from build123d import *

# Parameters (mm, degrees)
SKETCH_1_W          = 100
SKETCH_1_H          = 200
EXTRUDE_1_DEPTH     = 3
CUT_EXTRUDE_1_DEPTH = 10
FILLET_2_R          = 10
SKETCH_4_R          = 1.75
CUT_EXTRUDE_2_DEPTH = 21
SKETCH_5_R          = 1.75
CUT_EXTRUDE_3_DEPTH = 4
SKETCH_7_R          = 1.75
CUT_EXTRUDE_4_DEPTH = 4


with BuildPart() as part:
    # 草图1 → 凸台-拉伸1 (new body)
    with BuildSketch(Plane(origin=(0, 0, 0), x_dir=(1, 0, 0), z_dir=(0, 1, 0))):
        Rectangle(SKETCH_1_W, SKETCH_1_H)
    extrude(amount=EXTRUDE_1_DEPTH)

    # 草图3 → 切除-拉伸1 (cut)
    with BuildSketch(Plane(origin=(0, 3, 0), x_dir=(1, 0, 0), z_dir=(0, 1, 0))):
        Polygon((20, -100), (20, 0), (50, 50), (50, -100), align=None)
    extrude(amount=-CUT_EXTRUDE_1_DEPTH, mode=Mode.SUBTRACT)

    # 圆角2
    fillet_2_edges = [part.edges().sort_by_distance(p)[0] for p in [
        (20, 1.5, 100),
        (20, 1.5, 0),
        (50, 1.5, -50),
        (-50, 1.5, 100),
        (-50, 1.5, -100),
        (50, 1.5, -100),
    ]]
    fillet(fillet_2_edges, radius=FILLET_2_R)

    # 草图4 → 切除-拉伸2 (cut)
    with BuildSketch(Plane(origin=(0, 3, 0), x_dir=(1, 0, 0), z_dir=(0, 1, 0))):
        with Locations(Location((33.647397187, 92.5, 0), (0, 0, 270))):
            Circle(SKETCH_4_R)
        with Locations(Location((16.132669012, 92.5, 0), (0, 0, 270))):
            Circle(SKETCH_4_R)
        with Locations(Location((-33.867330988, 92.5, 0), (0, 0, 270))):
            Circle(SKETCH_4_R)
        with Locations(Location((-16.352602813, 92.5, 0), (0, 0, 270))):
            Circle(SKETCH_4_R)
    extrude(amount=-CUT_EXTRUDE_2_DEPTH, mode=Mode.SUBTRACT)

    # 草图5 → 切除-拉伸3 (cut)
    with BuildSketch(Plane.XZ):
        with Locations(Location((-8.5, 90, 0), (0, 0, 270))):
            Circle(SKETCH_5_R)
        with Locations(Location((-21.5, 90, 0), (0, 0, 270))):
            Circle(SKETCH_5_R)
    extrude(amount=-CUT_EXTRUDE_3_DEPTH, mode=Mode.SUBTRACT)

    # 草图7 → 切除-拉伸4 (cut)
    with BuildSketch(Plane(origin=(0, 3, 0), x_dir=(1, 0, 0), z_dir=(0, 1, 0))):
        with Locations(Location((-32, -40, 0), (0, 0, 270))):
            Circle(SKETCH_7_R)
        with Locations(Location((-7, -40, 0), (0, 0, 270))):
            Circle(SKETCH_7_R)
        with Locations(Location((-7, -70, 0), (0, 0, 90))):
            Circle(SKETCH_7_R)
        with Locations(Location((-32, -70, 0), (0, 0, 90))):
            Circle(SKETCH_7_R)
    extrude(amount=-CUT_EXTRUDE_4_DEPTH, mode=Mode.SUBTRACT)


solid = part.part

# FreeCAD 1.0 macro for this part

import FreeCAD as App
import Part
import Sketcher
Q = App.Units.Quantity


def edges_at(feature, points):
    """Names of the edges that pass closest to the given points."""
    edges = feature.Shape.Edges
    near = lambda p: min(range(len(edges)), key=lambda i: edges[i].distToShape(Part.Vertex(*p))[0])
    return sorted({f"Edge{near(p) + 1}" for p in points})


def add_polygon(sketch, points):
    """Adds a closed chain of lines whose ends are joined by coincident constraints."""
    first, n = sketch.GeometryCount, len(points)
    for a, b in zip(points, points[1:] + points[:1]):
        sketch.addGeometry(Part.LineSegment(App.Vector(*a, 0), App.Vector(*b, 0)), False)
    for i in range(n):
        sketch.addConstraint(Sketcher.Constraint("Coincident", first + i, 2, first + (i + 1) % n, 1))

doc = App.newDocument("Part")
params = doc.addObject("Spreadsheet::Sheet", "Params")
for row, (alias, value) in enumerate([
    ("sketch1_width", "100 mm"),
    ("sketch1_height", "200 mm"),
    ("pad1_length", "3 mm"),
    ("sketch2_width", "30 mm"),
    ("sketch2_height", "100 mm"),
    ("sketch2_height2", "150 mm"),
    ("pocket1_length", "10 mm"),
    ("fillet_radius", "10 mm"),
    ("sketch3_diameter", "3.5 mm"),
    ("pocket2_length", "21 mm"),
    ("sketch4_diameter", "3.5 mm"),
    ("pocket3_length", "4 mm"),
    ("sketch5_diameter", "3.5 mm"),
    ("pocket4_length", "4 mm"),
], start=1):
    params.set(f"A{row}", alias)
    params.set(f"B{row}", "=" + value)
    params.setAlias(f"B{row}", alias)

body = doc.addObject("PartDesign::Body", "Body")

# Sketch on XZ plane
sketch1 = body.newObject("Sketcher::SketchObject", "Sketch")
sketch1.AttachmentSupport = (doc.getObject("XZ_Plane"), [""])
sketch1.MapMode = "FlatFace"
add_polygon(sketch1, [(-50, -100), (-50, 100), (50, 100), (50, -100)])  # lines 0-3
sketch1.addConstraint([
    Sketcher.Constraint("Vertical", 0),
    Sketcher.Constraint("Horizontal", 1),
    Sketcher.Constraint("Vertical", 2),
    Sketcher.Constraint("Horizontal", 3),
    Sketcher.Constraint("Symmetric", 0, 2, 2, 2, -1, 1),
    Sketcher.Constraint("DistanceX", 1, 1, 1, 2, Q("100 mm")),
    Sketcher.Constraint("DistanceY", 0, 1, 0, 2, Q("200 mm")),
])
sketch1.setExpression("Constraints[9]", "Params.sketch1_width")
sketch1.setExpression("Constraints[10]", "Params.sketch1_height")
pad1 = body.newObject("PartDesign::Pad", "Pad")
pad1.Profile = sketch1
pad1.setExpression("Length", "Params.pad1_length")
pad1.Reversed = True

# Sketch on XZ plane
sketch2 = body.newObject("Sketcher::SketchObject", "Sketch001")
sketch2.AttachmentSupport = (doc.getObject("XZ_Plane"), [""])
sketch2.MapMode = "FlatFace"
sketch2.AttachmentOffset = App.Placement(App.Vector(0, 0, -3), App.Rotation())
add_polygon(sketch2, [(20, 0), (20, 100), (50, 100), (50, -50)])  # lines 0-3
sketch2.addConstraint([
    Sketcher.Constraint("Vertical", 0),
    Sketcher.Constraint("Horizontal", 1),
    Sketcher.Constraint("Vertical", 2),
    Sketcher.Constraint("PointOnObject", 3, 2, -1),
    Sketcher.Constraint("DistanceX", 1, 1, 1, 2, Q("30 mm")),
    Sketcher.Constraint("DistanceY", 0, 1, 0, 2, Q("100 mm")),
    Sketcher.Constraint("DistanceY", 2, 2, 2, 1, Q("150 mm")),
    Sketcher.Constraint("DistanceX", -1, 1, 0, 2, Q("20 mm")),
])
sketch2.setExpression("Constraints[8]", "Params.sketch2_width")
sketch2.setExpression("Constraints[9]", "Params.sketch2_height")
sketch2.setExpression("Constraints[10]", "Params.sketch2_height2")
pocket1 = body.newObject("PartDesign::Pocket", "Pocket")
pocket1.Profile = sketch2
pocket1.setExpression("Length", "Params.pocket1_length")
pocket1.Reversed = True
doc.recompute()

fillet = body.newObject("PartDesign::Fillet", "Fillet")
fillet.Base = (pocket1, edges_at(pocket1, [
    (20, 1.5, 100),
    (20, 1.5, 0),
    (50, 1.5, -50),
    (-50, 1.5, 100),
    (-50, 1.5, -100),
    (50, 1.5, -100),
]))
fillet.setExpression("Radius", "Params.fillet_radius")

# Sketch on XZ plane
sketch3 = body.newObject("Sketcher::SketchObject", "Sketch002")
sketch3.AttachmentSupport = (doc.getObject("XZ_Plane"), [""])
sketch3.MapMode = "FlatFace"
sketch3.AttachmentOffset = App.Placement(App.Vector(0, 0, -3), App.Rotation())
sketch3.addGeometry([
    Part.Circle(App.Vector(33.6, -92.5, 0), App.Vector(0, 0, 1), 1.8),
    Part.Circle(App.Vector(16.1, -92.5, 0), App.Vector(0, 0, 1), 1.8),
    Part.Circle(App.Vector(-33.9, -92.5, 0), App.Vector(0, 0, 1), 1.8),
    Part.Circle(App.Vector(-16.4, -92.5, 0), App.Vector(0, 0, 1), 1.8),
], False)
sketch3.addConstraint([
    Sketcher.Constraint("Equal", 0, 1),
    Sketcher.Constraint("Equal", 1, 2),
    Sketcher.Constraint("Equal", 2, 3),
    Sketcher.Constraint("Horizontal", 0, 3, 1, 3),
    Sketcher.Constraint("Horizontal", 1, 3, 2, 3),
    Sketcher.Constraint("Horizontal", 2, 3, 3, 3),
    Sketcher.Constraint("Diameter", 0, Q("3.5 mm")),
    Sketcher.Constraint("DistanceX", 2, 3, 1, 3, Q("50 mm")),
    Sketcher.Constraint("DistanceX", 3, 3, 0, 3, Q("50 mm")),
    Sketcher.Constraint("DistanceY", 0, 3, -1, 1, Q("92.5 mm")),
    Sketcher.Constraint("DistanceX", -1, 1, 1, 3, Q("16.132669 mm")),
    Sketcher.Constraint("DistanceX", 1, 3, 0, 3, Q("17.514728 mm")),
])
sketch3.setExpression("Constraints[6]", "Params.sketch3_diameter")
pocket2 = body.newObject("PartDesign::Pocket", "Pocket001")
pocket2.Profile = sketch3
pocket2.setExpression("Length", "Params.pocket2_length")
pocket2.Reversed = True

# Sketch on XZ plane
sketch4 = body.newObject("Sketcher::SketchObject", "Sketch003")
sketch4.AttachmentSupport = (doc.getObject("XZ_Plane"), [""])
sketch4.MapMode = "FlatFace"
sketch4.addGeometry([
    Part.Circle(App.Vector(-8.5, 90, 0), App.Vector(0, 0, 1), 1.8),
    Part.Circle(App.Vector(-21.5, 90, 0), App.Vector(0, 0, 1), 1.8),
], False)
sketch4.addConstraint([
    Sketcher.Constraint("Equal", 0, 1),
    Sketcher.Constraint("Horizontal", 0, 3, 1, 3),
    Sketcher.Constraint("Diameter", 0, Q("3.5 mm")),
    Sketcher.Constraint("DistanceY", -1, 1, 0, 3, Q("90 mm")),
    Sketcher.Constraint("DistanceX", 1, 3, 0, 3, Q("13 mm")),
    Sketcher.Constraint("DistanceX", 0, 3, -1, 1, Q("8.5 mm")),
])
sketch4.setExpression("Constraints[2]", "Params.sketch4_diameter")
pocket3 = body.newObject("PartDesign::Pocket", "Pocket002")
pocket3.Profile = sketch4
pocket3.setExpression("Length", "Params.pocket3_length")

# Sketch on XZ plane
sketch5 = body.newObject("Sketcher::SketchObject", "Sketch004")
sketch5.AttachmentSupport = (doc.getObject("XZ_Plane"), [""])
sketch5.MapMode = "FlatFace"
sketch5.AttachmentOffset = App.Placement(App.Vector(0, 0, -3), App.Rotation())
sketch5.addGeometry([
    Part.Circle(App.Vector(-32, 40, 0), App.Vector(0, 0, 1), 1.8),
    Part.Circle(App.Vector(-7, 40, 0), App.Vector(0, 0, 1), 1.8),
    Part.Circle(App.Vector(-7, 70, 0), App.Vector(0, 0, 1), 1.8),
    Part.Circle(App.Vector(-32, 70, 0), App.Vector(0, 0, 1), 1.8),
], False)
sketch5.addConstraint([
    Sketcher.Constraint("Equal", 0, 1),
    Sketcher.Constraint("Equal", 1, 2),
    Sketcher.Constraint("Equal", 2, 3),
    Sketcher.Constraint("Horizontal", 0, 3, 1, 3),
    Sketcher.Constraint("Horizontal", 2, 3, 3, 3),
    Sketcher.Constraint("Vertical", 1, 3, 2, 3),
    Sketcher.Constraint("Vertical", 0, 3, 3, 3),
    Sketcher.Constraint("Diameter", 0, Q("3.5 mm")),
    Sketcher.Constraint("DistanceX", 0, 3, -1, 1, Q("32 mm")),
    Sketcher.Constraint("DistanceY", -1, 1, 0, 3, Q("40 mm")),
    Sketcher.Constraint("DistanceX", 1, 3, -1, 1, Q("7 mm")),
    Sketcher.Constraint("DistanceY", -1, 1, 2, 3, Q("70 mm")),
])
sketch5.setExpression("Constraints[7]", "Params.sketch5_diameter")
pocket4 = body.newObject("PartDesign::Pocket", "Pocket003")
pocket4.Profile = sketch5
pocket4.setExpression("Length", "Params.pocket4_length")
pocket4.Reversed = True

doc.recompute()
